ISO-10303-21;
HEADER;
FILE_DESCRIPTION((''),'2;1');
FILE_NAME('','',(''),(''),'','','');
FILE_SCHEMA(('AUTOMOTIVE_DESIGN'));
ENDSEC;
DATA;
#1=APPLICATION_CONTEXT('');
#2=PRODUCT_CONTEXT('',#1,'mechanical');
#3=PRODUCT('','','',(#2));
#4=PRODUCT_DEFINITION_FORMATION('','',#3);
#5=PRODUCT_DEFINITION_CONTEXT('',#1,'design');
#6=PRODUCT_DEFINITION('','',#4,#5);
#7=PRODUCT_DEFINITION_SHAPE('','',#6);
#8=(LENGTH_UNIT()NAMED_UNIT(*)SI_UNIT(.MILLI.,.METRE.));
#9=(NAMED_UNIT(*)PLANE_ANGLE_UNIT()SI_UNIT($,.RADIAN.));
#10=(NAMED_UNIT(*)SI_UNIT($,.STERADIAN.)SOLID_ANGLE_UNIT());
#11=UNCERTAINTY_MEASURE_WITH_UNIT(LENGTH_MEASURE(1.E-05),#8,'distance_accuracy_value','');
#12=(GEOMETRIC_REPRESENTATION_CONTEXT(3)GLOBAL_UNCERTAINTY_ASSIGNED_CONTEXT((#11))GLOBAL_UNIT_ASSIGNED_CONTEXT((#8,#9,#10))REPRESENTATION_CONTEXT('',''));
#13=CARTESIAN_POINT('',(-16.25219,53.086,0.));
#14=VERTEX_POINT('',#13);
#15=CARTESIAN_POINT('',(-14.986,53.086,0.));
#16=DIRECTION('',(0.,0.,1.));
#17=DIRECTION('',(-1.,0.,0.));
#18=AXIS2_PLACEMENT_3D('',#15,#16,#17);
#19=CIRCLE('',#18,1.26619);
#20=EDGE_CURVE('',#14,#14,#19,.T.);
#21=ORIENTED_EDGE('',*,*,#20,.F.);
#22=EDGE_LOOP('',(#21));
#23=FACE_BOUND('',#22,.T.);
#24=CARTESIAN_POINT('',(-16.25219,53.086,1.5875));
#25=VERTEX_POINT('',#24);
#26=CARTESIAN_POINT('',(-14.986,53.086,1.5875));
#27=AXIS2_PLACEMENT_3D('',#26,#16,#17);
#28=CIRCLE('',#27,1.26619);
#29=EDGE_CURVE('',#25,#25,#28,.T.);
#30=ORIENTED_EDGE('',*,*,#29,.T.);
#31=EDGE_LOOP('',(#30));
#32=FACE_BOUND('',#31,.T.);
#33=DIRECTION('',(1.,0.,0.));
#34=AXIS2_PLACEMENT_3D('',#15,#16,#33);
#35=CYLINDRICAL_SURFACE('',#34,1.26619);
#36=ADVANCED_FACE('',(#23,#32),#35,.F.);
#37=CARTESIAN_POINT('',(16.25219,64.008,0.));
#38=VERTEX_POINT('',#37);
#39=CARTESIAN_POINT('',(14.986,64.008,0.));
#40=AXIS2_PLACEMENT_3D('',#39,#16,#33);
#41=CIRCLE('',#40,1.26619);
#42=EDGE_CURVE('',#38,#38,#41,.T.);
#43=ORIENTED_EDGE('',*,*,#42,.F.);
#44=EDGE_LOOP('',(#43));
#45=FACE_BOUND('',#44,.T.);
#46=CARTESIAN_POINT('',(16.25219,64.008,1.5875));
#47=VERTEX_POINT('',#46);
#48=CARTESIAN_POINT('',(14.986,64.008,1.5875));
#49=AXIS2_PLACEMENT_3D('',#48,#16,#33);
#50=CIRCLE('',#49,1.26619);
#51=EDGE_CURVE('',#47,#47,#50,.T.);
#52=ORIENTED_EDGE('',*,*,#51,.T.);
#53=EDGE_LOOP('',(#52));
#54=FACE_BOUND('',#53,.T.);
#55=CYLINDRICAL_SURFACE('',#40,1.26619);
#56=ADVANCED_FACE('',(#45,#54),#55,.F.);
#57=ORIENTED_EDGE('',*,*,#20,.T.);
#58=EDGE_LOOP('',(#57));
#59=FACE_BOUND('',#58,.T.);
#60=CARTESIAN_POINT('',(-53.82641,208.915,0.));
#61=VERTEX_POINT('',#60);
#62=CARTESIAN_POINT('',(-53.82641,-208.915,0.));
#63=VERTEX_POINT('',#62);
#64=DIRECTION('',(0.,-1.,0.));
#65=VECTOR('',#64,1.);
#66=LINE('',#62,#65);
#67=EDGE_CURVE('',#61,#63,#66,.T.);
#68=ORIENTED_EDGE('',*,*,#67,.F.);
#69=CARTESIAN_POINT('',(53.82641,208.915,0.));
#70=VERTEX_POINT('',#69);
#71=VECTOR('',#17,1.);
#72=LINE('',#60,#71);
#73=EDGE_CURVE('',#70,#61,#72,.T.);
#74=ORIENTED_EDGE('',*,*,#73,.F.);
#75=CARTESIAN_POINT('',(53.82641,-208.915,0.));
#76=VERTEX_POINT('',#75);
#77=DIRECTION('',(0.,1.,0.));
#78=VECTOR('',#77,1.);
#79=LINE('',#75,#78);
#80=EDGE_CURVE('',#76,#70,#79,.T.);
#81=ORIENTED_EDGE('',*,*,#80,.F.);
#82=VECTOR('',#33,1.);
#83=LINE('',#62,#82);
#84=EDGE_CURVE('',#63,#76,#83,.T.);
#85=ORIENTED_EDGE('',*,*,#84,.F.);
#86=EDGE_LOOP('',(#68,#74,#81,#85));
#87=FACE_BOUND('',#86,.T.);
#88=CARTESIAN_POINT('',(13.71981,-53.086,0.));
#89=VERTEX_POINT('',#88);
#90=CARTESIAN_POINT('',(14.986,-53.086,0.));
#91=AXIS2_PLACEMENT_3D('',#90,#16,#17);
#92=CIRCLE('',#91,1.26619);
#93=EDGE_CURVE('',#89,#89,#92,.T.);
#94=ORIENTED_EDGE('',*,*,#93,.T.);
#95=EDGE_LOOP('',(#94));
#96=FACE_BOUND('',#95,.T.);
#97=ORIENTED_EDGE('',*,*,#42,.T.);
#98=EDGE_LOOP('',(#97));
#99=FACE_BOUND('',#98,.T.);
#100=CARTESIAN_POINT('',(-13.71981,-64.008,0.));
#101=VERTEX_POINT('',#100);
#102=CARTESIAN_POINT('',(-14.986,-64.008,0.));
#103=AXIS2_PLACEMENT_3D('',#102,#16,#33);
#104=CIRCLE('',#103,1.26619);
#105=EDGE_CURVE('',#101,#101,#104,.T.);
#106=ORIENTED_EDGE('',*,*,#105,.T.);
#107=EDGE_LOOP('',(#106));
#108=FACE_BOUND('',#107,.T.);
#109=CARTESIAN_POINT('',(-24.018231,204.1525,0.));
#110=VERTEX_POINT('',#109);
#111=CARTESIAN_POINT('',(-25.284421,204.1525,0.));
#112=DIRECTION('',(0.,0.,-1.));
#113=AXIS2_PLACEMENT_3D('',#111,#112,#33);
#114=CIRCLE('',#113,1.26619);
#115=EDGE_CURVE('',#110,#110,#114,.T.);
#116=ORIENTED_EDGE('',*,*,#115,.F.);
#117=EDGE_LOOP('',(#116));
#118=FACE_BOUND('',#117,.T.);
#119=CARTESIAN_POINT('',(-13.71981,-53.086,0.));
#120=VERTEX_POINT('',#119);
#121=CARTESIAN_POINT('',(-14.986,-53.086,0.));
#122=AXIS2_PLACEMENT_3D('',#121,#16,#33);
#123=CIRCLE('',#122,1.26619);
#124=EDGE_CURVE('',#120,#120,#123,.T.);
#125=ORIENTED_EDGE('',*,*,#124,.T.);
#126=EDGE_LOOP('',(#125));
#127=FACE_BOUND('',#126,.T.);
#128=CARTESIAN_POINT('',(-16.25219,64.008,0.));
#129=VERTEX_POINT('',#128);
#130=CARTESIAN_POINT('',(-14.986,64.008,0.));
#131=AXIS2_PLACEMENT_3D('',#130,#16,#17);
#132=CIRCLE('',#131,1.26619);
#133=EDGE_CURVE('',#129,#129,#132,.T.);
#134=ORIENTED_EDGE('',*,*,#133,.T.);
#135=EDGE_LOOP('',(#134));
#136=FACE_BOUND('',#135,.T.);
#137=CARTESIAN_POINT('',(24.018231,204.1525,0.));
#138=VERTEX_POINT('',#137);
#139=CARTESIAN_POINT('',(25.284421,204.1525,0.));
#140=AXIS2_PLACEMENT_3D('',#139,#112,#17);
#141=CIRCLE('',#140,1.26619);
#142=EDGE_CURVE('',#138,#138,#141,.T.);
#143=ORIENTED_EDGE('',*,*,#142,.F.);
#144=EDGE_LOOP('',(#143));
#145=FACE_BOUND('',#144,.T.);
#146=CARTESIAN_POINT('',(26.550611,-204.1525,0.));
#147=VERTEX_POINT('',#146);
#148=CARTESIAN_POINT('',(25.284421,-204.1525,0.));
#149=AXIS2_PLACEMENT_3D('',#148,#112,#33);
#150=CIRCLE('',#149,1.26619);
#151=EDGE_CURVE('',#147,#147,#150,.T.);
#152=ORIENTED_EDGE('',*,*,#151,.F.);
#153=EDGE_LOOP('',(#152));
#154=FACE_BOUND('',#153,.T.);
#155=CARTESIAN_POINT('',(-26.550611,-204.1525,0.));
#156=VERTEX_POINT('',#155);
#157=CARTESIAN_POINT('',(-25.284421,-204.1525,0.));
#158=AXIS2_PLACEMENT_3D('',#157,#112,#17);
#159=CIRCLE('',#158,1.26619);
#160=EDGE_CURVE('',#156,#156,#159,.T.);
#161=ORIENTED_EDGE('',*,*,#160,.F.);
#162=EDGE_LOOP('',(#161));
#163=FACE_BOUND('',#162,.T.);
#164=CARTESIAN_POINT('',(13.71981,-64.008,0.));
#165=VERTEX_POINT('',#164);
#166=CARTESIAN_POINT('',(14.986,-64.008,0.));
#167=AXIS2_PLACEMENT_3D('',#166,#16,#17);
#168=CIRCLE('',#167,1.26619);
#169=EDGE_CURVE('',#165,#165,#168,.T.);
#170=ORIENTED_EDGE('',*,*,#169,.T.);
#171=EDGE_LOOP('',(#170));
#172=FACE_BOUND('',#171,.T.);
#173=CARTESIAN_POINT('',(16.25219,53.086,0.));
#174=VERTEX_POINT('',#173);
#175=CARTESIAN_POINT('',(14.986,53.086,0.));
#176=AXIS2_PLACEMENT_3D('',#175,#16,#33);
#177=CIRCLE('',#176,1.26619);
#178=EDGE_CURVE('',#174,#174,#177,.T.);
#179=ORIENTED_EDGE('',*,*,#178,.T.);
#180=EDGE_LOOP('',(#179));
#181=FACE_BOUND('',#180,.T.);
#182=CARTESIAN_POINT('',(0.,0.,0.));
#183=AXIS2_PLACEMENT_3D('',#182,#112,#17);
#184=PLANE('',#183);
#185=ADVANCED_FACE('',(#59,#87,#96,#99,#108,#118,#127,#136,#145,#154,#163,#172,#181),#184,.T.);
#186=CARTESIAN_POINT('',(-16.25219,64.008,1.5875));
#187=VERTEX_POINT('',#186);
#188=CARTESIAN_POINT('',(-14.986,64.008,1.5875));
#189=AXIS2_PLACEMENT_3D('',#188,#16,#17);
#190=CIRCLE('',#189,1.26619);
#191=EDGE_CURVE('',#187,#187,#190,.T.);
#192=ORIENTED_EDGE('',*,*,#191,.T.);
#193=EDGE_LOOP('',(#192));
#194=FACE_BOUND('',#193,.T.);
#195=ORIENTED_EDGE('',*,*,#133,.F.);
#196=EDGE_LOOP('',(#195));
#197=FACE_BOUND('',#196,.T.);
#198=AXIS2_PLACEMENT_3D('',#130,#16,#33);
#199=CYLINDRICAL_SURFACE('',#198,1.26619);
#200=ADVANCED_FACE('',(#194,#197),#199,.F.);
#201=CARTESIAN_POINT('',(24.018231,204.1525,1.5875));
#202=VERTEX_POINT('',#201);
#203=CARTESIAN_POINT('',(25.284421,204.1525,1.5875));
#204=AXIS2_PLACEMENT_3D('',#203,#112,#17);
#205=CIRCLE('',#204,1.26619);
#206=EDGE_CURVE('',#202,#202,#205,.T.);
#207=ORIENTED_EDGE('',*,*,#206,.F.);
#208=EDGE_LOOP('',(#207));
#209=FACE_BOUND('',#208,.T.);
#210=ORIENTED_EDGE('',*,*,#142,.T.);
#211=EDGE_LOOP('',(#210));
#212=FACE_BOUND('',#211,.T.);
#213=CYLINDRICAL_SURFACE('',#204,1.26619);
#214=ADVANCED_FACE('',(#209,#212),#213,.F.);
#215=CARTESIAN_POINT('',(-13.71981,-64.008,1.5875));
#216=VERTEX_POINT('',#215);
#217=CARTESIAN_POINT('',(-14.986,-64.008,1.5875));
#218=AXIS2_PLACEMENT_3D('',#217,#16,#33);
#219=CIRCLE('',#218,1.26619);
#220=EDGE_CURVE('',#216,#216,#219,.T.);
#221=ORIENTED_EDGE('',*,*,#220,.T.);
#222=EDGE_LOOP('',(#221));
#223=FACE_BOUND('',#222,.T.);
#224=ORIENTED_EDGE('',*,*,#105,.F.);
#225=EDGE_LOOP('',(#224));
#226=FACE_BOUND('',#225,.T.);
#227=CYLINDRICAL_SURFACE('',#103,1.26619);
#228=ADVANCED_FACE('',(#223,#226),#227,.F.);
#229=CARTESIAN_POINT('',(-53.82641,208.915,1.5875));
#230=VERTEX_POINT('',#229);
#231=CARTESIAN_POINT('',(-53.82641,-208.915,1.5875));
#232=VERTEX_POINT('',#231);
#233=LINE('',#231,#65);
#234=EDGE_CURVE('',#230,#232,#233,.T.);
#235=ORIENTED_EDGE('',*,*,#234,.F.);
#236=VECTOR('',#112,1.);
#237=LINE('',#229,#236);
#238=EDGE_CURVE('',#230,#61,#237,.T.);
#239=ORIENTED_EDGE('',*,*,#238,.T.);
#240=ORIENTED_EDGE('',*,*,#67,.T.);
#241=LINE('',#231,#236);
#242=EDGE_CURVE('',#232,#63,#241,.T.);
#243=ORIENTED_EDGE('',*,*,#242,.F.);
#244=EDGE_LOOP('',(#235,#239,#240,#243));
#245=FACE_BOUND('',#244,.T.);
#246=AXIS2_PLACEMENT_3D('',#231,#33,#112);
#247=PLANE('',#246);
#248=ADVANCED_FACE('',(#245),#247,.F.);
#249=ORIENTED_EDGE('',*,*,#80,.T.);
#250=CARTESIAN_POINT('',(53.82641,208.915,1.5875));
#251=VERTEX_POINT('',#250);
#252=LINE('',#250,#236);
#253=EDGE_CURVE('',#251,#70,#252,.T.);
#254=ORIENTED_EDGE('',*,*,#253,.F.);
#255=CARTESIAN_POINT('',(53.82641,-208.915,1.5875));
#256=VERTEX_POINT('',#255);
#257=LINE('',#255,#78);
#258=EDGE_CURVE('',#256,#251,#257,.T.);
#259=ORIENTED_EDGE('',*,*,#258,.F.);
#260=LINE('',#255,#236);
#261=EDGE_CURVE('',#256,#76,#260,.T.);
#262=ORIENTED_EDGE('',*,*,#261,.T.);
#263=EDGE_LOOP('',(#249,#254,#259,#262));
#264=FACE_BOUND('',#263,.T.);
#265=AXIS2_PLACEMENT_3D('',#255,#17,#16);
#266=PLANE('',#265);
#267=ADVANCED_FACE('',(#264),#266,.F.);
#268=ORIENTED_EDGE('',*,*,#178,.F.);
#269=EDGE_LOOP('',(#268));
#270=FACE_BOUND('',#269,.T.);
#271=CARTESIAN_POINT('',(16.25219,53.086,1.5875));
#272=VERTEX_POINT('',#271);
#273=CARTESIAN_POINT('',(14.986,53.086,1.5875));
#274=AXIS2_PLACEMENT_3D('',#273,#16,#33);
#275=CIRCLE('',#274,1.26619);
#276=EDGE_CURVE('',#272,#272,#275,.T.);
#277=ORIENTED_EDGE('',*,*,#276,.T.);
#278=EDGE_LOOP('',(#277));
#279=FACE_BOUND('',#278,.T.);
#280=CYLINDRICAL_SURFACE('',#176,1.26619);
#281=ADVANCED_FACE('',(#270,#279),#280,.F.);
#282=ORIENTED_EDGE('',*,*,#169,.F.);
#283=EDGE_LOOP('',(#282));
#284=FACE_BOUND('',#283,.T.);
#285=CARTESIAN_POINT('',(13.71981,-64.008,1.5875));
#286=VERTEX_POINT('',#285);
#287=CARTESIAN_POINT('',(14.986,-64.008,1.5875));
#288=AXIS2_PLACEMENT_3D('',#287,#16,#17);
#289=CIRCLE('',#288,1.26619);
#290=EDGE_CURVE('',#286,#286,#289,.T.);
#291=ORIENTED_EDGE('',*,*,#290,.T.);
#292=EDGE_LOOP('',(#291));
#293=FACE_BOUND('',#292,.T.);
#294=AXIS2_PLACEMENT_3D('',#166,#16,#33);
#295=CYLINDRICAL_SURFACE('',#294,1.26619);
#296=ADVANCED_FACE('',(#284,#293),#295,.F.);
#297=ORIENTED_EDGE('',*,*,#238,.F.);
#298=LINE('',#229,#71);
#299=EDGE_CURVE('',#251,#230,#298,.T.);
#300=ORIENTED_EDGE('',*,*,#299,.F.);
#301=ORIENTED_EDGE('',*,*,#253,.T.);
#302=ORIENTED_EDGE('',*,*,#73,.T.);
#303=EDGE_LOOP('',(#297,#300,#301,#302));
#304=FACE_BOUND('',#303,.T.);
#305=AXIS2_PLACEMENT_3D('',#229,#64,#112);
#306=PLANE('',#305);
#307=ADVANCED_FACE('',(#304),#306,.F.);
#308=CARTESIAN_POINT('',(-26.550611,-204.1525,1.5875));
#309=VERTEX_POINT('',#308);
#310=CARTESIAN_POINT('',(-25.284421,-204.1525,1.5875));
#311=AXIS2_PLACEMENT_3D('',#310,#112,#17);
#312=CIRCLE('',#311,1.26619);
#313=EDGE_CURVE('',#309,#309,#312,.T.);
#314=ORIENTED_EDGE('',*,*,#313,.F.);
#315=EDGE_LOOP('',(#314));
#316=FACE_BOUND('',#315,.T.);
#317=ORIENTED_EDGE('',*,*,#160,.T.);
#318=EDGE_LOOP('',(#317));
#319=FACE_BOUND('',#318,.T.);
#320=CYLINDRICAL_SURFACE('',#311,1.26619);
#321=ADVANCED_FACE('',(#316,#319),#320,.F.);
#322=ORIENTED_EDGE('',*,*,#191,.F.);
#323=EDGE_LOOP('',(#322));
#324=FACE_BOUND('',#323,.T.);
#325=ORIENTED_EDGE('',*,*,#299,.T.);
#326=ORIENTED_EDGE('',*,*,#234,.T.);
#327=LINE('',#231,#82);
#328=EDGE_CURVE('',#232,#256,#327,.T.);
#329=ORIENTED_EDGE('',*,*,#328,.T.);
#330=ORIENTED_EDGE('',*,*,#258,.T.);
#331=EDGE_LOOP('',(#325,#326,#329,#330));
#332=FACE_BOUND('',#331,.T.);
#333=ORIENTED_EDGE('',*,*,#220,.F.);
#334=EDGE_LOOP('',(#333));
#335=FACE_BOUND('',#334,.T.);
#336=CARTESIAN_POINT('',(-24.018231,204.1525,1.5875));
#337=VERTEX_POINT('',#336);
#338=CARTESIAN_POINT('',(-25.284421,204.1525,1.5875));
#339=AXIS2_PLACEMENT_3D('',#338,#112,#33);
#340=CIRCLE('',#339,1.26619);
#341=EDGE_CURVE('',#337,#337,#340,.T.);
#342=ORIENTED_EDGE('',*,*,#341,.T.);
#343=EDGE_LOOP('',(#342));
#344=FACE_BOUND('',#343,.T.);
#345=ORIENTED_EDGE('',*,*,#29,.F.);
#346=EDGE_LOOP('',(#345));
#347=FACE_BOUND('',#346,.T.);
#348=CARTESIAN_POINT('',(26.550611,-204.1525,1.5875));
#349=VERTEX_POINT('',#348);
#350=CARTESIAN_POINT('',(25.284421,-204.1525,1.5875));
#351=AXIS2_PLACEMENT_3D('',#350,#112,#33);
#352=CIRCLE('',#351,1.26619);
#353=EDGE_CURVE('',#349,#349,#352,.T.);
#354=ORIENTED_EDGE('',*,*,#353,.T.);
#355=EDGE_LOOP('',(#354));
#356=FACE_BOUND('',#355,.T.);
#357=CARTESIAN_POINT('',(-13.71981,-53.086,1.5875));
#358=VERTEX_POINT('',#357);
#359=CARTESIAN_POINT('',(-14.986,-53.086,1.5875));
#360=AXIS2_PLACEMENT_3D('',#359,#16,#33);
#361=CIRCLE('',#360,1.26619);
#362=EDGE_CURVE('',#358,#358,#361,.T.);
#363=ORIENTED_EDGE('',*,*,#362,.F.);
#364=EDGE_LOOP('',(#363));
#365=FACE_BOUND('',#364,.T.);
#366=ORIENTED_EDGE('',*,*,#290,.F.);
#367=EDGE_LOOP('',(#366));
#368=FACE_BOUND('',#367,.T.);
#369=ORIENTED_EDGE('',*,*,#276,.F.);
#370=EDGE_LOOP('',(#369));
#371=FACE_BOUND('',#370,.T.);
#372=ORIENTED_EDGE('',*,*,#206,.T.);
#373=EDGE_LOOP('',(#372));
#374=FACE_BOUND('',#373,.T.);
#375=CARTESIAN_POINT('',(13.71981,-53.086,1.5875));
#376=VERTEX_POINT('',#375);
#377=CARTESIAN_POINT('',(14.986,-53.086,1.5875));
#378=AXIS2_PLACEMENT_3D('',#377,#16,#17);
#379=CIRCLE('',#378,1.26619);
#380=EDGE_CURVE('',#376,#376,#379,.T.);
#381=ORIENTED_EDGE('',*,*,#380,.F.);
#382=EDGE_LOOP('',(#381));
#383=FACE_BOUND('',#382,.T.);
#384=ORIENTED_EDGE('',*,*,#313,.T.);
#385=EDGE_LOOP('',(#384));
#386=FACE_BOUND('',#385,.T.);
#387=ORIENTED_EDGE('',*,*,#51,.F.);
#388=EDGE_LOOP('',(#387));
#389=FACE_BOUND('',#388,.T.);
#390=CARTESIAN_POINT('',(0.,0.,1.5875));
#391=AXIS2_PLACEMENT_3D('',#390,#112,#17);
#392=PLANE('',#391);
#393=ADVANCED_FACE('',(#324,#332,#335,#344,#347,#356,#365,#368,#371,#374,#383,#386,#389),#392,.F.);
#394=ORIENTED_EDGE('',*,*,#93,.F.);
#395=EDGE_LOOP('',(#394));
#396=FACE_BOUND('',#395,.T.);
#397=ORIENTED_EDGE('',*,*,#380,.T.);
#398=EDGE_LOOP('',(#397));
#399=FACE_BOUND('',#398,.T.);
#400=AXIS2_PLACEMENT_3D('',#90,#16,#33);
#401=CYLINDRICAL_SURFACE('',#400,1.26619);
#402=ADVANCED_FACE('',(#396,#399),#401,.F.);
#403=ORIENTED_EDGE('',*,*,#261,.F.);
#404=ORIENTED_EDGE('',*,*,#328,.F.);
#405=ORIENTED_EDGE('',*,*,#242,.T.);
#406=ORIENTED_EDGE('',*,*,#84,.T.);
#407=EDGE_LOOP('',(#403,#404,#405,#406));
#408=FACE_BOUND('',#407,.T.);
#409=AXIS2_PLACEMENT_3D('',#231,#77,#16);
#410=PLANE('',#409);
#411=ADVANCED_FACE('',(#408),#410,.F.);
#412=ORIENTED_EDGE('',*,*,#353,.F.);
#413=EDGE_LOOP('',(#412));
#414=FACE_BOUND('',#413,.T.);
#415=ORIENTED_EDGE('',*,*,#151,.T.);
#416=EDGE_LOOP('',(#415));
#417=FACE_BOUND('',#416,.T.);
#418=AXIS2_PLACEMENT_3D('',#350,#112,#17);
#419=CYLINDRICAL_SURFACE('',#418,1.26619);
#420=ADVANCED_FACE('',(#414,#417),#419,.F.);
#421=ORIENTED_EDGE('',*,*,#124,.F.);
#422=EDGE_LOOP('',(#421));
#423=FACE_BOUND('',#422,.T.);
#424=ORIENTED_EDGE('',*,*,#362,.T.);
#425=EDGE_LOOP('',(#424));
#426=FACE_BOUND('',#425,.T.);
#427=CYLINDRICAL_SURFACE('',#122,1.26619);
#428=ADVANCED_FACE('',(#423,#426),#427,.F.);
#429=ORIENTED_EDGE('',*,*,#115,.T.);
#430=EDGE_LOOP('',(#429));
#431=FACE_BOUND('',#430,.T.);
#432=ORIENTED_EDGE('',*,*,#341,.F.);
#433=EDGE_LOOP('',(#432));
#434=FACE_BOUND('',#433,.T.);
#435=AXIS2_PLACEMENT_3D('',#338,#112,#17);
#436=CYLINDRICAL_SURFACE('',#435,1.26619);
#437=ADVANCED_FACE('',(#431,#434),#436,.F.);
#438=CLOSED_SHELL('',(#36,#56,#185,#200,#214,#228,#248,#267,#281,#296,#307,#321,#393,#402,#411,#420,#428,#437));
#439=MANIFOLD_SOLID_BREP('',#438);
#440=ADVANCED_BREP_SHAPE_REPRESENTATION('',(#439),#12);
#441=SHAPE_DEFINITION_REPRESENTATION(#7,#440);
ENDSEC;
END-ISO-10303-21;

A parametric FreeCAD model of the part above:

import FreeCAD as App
import Part
import Sketcher
from FreeCAD import Vector
Q = App.Units.Quantity


def add_polygon(sketch, points):
    """Adds a closed chain of lines whose ends are joined by coincident constraints."""
    first, n = sketch.GeometryCount, len(points)
    for a, b in zip(points, points[1:] + points[:1]):
        sketch.addGeometry(Part.LineSegment(App.Vector(*a, 0), App.Vector(*b, 0)), False)
    for i in range(n):
        sketch.addConstraint(Sketcher.Constraint("Coincident", first + i, 2, first + (i + 1) % n, 1))

doc = App.newDocument("Part")
body = doc.addObject("PartDesign::Body", "Body")

sketch1 = body.newObject("Sketcher::SketchObject", "Sketch")
sketch1.AttachmentSupport = (doc.getObject("XY_Plane"), [""])
sketch1.MapMode = "FlatFace"
add_polygon(sketch1, [(-54, 209), (-54, -209), (54, -209), (54, 209)])
sketch1.addConstraint([
    Sketcher.Constraint("Vertical", 0),
    Sketcher.Constraint("Horizontal", 1),
    Sketcher.Constraint("Vertical", 2),
    Sketcher.Constraint("Horizontal", 3),
    Sketcher.Constraint("Symmetric", 0, 2, 2, 2, -1, 1),
    Sketcher.Constraint("DistanceY", 0, 2, 0, 1, Q("16.45 in")),
    Sketcher.Constraint("DistanceX", 1, 1, 1, 2, Q("4.2383 in")),
])
pad1 = body.newObject("PartDesign::Pad", "Pad")
pad1.Profile = sketch1
pad1.Length = Q("0.0625 in")

sketch2 = body.newObject("Sketcher::SketchObject", "Sketch001")
sketch2.AttachmentSupport = (doc.getObject("XY_Plane"), [""])
sketch2.MapMode = "FlatFace"
sketch2.addGeometry([
    Part.Circle(Vector(-25.3, -204.2, 0), Vector(0, 0, 1), 1.3),
    Part.Circle(Vector(25.3, -204.2, 0), Vector(0, 0, 1), 1.3),
    Part.Circle(Vector(-25.3, 204.2, 0), Vector(0, 0, 1), 1.3),
    Part.Circle(Vector(25.3, 204.2, 0), Vector(0, 0, 1), 1.3),
], False)
sketch2.addConstraint([
    Sketcher.Constraint("Equal", 0, 1),
    Sketcher.Constraint("Equal", 1, 2),
    Sketcher.Constraint("Equal", 2, 3),
    Sketcher.Constraint("Symmetric", 1, 3, 2, 3, -1, 1),
    Sketcher.Constraint("Symmetric", 0, 3, 3, 3, -1, 1),
    Sketcher.Constraint("Symmetric", 0, 3, 1, 3, -2),
    Sketcher.Constraint("Diameter", 0, Q("0.0997 in")),
    Sketcher.Constraint("DistanceY", 0, 3, 2, 3, Q("16.075 in")),
    Sketcher.Constraint("DistanceX", 0, 3, -1, 1, 25.284421),
])
pocket1 = body.newObject("PartDesign::Pocket", "Pocket")
pocket1.Profile = sketch2
pocket1.Length = Q("0.0625 in")
pocket1.Reversed = True

sketch3 = body.newObject("Sketcher::SketchObject", "Sketch002")
sketch3.AttachmentSupport = (doc.getObject("XY_Plane"), [""])
sketch3.MapMode = "FlatFace"
sketch3.AttachmentOffset = App.Placement(Vector(0, 0, 0.0625 * 25.4), App.Rotation())
sketch3.addGeometry([
    Part.Circle(Vector(15, 53.1, 0), Vector(0, 0, 1), 1.3),
    Part.Circle(Vector(-15, 53.1, 0), Vector(0, 0, 1), 1.3),
    Part.Circle(Vector(15, -53.1, 0), Vector(0, 0, 1), 1.3),
    Part.Circle(Vector(-15, -53.1, 0), Vector(0, 0, 1), 1.3),
    Part.Circle(Vector(15, 64, 0), Vector(0, 0, 1), 1.3),
    Part.Circle(Vector(-15, 64, 0), Vector(0, 0, 1), 1.3),
    Part.Circle(Vector(15, -64, 0), Vector(0, 0, 1), 1.3),
    Part.Circle(Vector(-15, -64, 0), Vector(0, 0, 1), 1.3),
], False)
sketch3.addConstraint([
    Sketcher.Constraint("Equal", 0, 1),
    Sketcher.Constraint("Equal", 1, 2),
    Sketcher.Constraint("Equal", 2, 3),
    Sketcher.Constraint("Equal", 3, 4),
    Sketcher.Constraint("Equal", 4, 5),
    Sketcher.Constraint("Equal", 5, 6),
    Sketcher.Constraint("Equal", 6, 7),
    Sketcher.Constraint("Symmetric", 1, 3, 2, 3, -1, 1),
    Sketcher.Constraint("Symmetric", 0, 3, 3, 3, -1, 1),
    Sketcher.Constraint("Symmetric", 5, 3, 6, 3, -1, 1),
    Sketcher.Constraint("Symmetric", 4, 3, 7, 3, -1, 1),
    Sketcher.Constraint("Symmetric", 0, 3, 1, 3, -2),
    Sketcher.Constraint("Symmetric", 4, 3, 5, 3, -2),
    Sketcher.Constraint("Vertical", 2, 3, 4, 3),
    Sketcher.Constraint("Diameter", 0, Q("0.0997 in")),
    Sketcher.Constraint("DistanceX", -1, 1, 0, 3, Q("0.59 in")),
    Sketcher.Constraint("DistanceY", -1, 1, 0, 3, Q("2.09 in")),
    Sketcher.Constraint("DistanceY", -1, 1, 4, 3, Q("2.52 in")),
])
pocket2 = body.newObject("PartDesign::Pocket", "Pocket001")
pocket2.Profile = sketch3
pocket2.Type = "ThroughAll"

doc.recompute()
